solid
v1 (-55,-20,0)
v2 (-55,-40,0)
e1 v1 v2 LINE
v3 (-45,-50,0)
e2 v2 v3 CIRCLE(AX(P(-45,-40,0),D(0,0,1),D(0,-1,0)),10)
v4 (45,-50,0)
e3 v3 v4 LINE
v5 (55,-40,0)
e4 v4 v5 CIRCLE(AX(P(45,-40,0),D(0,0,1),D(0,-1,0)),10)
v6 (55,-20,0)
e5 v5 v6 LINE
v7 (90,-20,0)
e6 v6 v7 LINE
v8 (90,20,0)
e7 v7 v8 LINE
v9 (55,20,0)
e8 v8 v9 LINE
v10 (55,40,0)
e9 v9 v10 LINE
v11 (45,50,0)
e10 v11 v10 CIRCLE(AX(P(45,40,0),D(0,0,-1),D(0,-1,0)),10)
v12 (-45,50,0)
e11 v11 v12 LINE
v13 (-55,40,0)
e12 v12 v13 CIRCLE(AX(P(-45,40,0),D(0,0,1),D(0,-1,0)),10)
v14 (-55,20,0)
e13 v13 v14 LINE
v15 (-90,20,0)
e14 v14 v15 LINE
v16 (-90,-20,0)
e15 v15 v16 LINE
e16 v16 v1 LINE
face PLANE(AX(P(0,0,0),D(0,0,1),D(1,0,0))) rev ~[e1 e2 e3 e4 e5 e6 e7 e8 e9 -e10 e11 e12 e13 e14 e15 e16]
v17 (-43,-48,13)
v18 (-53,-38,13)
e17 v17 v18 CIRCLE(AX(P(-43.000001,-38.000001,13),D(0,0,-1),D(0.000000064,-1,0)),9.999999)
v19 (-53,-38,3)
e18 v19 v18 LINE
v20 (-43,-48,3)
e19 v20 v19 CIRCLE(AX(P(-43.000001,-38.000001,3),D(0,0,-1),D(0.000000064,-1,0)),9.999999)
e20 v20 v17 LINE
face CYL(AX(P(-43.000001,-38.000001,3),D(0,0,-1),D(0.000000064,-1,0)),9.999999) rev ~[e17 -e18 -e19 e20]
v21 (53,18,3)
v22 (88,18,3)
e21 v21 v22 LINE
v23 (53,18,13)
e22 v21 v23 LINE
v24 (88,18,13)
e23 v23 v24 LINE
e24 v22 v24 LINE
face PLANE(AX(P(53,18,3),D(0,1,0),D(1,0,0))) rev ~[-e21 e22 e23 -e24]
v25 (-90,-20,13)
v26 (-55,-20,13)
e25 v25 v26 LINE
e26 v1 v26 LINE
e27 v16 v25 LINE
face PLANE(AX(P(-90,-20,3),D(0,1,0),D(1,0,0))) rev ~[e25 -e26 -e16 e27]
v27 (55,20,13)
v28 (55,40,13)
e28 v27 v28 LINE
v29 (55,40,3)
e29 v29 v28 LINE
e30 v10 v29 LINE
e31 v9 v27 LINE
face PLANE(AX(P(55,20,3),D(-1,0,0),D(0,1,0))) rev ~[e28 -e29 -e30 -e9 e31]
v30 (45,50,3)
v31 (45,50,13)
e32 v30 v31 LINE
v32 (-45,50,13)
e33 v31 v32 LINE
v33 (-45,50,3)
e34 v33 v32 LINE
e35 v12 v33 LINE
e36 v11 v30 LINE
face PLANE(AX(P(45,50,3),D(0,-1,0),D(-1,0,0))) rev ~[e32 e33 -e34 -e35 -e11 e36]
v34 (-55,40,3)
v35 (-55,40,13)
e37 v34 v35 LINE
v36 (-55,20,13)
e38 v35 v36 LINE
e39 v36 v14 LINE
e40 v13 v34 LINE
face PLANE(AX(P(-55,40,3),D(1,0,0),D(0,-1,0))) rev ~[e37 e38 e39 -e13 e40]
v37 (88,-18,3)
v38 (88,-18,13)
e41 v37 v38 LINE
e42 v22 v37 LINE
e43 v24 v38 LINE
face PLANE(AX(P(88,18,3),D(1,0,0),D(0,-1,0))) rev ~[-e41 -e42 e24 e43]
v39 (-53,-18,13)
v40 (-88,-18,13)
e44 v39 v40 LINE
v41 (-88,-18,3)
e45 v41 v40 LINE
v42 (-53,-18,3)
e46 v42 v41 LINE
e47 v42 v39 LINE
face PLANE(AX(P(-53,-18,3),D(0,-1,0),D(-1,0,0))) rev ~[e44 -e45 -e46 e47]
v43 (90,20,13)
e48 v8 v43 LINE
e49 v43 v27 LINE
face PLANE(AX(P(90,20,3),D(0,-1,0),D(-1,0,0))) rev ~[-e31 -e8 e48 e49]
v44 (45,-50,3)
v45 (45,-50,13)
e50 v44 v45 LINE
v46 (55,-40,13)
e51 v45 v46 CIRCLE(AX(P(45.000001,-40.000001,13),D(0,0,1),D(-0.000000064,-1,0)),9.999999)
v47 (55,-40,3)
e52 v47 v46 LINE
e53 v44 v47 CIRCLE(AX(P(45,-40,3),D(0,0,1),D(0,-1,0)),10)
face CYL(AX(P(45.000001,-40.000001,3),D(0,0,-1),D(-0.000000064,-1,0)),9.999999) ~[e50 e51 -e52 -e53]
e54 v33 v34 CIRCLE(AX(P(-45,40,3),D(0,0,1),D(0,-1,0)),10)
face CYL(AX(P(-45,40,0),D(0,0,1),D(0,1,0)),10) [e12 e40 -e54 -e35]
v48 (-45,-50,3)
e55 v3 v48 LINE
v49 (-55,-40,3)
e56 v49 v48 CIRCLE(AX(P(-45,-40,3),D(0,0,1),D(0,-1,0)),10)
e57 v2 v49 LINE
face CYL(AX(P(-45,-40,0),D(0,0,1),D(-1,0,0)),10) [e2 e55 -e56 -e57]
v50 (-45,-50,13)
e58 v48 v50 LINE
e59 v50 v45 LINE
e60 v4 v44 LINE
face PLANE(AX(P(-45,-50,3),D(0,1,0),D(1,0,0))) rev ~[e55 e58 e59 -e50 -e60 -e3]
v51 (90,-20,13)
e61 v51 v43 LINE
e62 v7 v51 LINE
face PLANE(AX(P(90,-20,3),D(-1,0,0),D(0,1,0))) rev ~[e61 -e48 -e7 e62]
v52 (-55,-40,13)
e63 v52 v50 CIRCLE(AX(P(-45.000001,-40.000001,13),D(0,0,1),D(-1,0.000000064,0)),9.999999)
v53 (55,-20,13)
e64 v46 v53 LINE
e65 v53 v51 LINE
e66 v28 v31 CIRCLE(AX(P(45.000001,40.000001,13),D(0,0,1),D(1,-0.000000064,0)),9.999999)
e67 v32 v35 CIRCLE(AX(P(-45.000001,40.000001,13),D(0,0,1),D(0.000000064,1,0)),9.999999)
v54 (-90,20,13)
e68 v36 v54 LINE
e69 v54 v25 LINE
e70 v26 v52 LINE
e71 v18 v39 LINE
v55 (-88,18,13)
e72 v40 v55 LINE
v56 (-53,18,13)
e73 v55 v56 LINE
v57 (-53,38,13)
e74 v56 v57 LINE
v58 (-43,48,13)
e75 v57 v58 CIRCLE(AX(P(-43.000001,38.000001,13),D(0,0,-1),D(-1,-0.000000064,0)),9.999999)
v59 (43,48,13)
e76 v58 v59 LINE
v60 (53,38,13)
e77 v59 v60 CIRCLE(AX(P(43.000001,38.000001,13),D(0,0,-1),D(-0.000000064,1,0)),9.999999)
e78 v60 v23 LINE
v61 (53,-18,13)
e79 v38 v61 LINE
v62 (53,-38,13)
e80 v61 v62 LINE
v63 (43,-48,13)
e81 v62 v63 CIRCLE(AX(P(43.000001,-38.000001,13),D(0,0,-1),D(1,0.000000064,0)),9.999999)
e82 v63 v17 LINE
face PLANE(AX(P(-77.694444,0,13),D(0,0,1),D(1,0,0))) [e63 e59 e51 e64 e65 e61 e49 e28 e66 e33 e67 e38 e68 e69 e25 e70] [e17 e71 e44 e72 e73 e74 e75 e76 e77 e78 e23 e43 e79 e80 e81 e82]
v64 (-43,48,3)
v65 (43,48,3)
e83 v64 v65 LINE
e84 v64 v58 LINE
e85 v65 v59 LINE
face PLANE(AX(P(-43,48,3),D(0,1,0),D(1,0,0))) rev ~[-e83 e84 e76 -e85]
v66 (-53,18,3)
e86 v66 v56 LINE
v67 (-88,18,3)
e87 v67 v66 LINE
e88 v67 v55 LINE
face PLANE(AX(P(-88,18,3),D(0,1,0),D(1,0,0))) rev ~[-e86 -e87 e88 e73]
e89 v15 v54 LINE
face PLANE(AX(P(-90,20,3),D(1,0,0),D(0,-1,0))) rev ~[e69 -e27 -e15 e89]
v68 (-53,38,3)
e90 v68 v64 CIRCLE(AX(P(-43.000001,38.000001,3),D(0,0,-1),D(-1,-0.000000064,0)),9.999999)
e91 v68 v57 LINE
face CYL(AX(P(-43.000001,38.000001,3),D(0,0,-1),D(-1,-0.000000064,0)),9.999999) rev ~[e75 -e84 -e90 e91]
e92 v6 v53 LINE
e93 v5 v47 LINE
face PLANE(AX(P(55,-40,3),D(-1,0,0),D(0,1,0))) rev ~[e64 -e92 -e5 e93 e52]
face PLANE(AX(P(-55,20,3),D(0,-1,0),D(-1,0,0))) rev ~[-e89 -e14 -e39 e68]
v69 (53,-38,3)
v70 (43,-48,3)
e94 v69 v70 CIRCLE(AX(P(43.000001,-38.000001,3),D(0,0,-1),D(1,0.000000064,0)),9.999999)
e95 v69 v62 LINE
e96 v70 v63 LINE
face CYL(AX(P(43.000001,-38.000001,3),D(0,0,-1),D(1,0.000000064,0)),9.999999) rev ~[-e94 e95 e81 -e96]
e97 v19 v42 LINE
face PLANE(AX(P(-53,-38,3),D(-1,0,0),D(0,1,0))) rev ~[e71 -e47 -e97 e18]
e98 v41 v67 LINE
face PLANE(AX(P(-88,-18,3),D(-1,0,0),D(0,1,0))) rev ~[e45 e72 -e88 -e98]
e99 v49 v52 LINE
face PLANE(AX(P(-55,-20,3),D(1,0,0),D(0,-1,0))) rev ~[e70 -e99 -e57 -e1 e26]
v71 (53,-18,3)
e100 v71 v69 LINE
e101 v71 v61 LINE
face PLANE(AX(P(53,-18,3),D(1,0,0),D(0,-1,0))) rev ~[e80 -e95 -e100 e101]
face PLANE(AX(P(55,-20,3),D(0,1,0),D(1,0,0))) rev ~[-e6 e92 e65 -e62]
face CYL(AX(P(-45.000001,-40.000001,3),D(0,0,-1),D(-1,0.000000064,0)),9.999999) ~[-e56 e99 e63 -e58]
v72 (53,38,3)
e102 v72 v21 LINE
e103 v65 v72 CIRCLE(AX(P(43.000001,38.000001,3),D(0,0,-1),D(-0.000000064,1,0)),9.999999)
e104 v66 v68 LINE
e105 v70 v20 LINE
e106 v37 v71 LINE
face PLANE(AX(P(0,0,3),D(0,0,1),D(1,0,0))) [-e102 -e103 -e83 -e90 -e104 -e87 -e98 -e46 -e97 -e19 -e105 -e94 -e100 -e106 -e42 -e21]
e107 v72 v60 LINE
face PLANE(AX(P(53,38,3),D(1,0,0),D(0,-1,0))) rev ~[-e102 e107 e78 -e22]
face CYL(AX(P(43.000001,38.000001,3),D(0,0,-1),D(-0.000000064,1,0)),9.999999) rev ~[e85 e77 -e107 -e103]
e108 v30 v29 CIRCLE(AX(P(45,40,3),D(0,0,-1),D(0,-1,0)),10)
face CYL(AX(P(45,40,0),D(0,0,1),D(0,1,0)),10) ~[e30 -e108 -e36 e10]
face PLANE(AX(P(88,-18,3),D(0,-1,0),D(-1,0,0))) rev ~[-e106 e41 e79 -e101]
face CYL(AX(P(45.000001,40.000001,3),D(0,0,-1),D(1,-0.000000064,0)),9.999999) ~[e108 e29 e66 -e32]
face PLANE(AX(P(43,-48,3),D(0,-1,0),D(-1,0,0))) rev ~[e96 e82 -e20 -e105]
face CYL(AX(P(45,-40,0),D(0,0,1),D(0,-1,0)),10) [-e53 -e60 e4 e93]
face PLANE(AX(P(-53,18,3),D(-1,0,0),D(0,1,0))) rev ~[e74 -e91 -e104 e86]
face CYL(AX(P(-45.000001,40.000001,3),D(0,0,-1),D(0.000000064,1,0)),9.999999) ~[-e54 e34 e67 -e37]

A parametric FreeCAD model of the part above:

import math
import FreeCAD as App
import Part
import Sketcher


def edges_at(feature, points):
    """Names of the edges that pass closest to the given points."""
    edges = feature.Shape.Edges
    near = lambda p: min(range(len(edges)), key=lambda i: edges[i].distToShape(Part.Vertex(*p))[0])
    return sorted({f"Edge{near(p) + 1}" for p in points})

doc = App.newDocument("Part")
params = doc.addObject("Spreadsheet::Sheet", "Params")
for row, (alias, value) in enumerate([
    ("sketch1_width", "110 mm"),
    ("sketch1_width2", "35 mm"),
    ("sketch1_height", "30 mm"),
    ("sketch1_height2", "40 mm"),
    ("pad1_length", "3 mm"),
    ("fillet_radius", "10 mm"),
    ("sketch2_radius", "9.999999 mm"),
    ("sketch2_width", "35 mm"),
    ("sketch2_width2", "90 mm"),
    ("sketch2_width3", "86 mm"),
    ("sketch2_height", "40 mm"),
    ("pad2_length", "10 mm"),
], start=1):
    params.set(f"A{row}", alias)
    params.set(f"B{row}", "=" + value)
    params.setAlias(f"B{row}", alias)

body = doc.addObject("PartDesign::Body", "Body")

sketch1 = body.newObject("Sketcher::SketchObject", "Sketch")
sketch1.AttachmentSupport = (doc.getObject("XY_Plane"), [""])
sketch1.MapMode = "FlatFace"
sketch1.addGeometry(Part.LineSegment(App.Vector(55, 50, 0), App.Vector(-55, 50, 0)), False)
sketch1.addGeometry(Part.LineSegment(App.Vector(-55, 50, 0), App.Vector(-55, 20, 0)), False)
sketch1.addGeometry(Part.LineSegment(App.Vector(-55, 20, 0), App.Vector(-90, 20, 0)), False)
sketch1.addGeometry(Part.LineSegment(App.Vector(-90, 20, 0), App.Vector(-90, -20, 0)), False)
sketch1.addGeometry(Part.LineSegment(App.Vector(-90, -20, 0), App.Vector(-55, -20, 0)), False)
sketch1.addGeometry(Part.LineSegment(App.Vector(-55, -20, 0), App.Vector(-55, -50, 0)), False)
sketch1.addGeometry(Part.LineSegment(App.Vector(-55, -50, 0), App.Vector(55, -50, 0)), False)
sketch1.addGeometry(Part.LineSegment(App.Vector(55, -50, 0), App.Vector(55, -20, 0)), False)
sketch1.addGeometry(Part.LineSegment(App.Vector(55, -20, 0), App.Vector(90, -20, 0)), False)
sketch1.addGeometry(Part.LineSegment(App.Vector(90, -20, 0), App.Vector(90, 20, 0)), False)
sketch1.addGeometry(Part.LineSegment(App.Vector(90, 20, 0), App.Vector(55, 20, 0)), False)
sketch1.addGeometry(Part.LineSegment(App.Vector(55, 20, 0), App.Vector(55, 50, 0)), False)
sketch1.addConstraint(Sketcher.Constraint("Coincident", 0, 2, 1, 1))
sketch1.addConstraint(Sketcher.Constraint("Coincident", 1, 2, 2, 1))
sketch1.addConstraint(Sketcher.Constraint("Coincident", 2, 2, 3, 1))
sketch1.addConstraint(Sketcher.Constraint("Coincident", 3, 2, 4, 1))
sketch1.addConstraint(Sketcher.Constraint("Coincident", 4, 2, 5, 1))
sketch1.addConstraint(Sketcher.Constraint("Coincident", 5, 2, 6, 1))
sketch1.addConstraint(Sketcher.Constraint("Coincident", 6, 2, 7, 1))
sketch1.addConstraint(Sketcher.Constraint("Coincident", 7, 2, 8, 1))
sketch1.addConstraint(Sketcher.Constraint("Coincident", 8, 2, 9, 1))
sketch1.addConstraint(Sketcher.Constraint("Coincident", 9, 2, 10, 1))
sketch1.addConstraint(Sketcher.Constraint("Coincident", 10, 2, 11, 1))
sketch1.addConstraint(Sketcher.Constraint("Coincident", 11, 2, 0, 1))
sketch1.addConstraint(Sketcher.Constraint("Horizontal", 0))
sketch1.addConstraint(Sketcher.Constraint("Vertical", 1))
sketch1.addConstraint(Sketcher.Constraint("Horizontal", 2))
sketch1.addConstraint(Sketcher.Constraint("Vertical", 3))
sketch1.addConstraint(Sketcher.Constraint("Horizontal", 4))
sketch1.addConstraint(Sketcher.Constraint("Vertical", 5))
sketch1.addConstraint(Sketcher.Constraint("Horizontal", 6))
sketch1.addConstraint(Sketcher.Constraint("Vertical", 7))
sketch1.addConstraint(Sketcher.Constraint("Horizontal", 8))
sketch1.addConstraint(Sketcher.Constraint("Vertical", 9))
sketch1.addConstraint(Sketcher.Constraint("Horizontal", 10))
sketch1.addConstraint(Sketcher.Constraint("Vertical", 11))
sketch1.addConstraint(Sketcher.Constraint("Symmetric", 0, 2, 6, 2, -1, 1))
sketch1.addConstraint(Sketcher.Constraint("Symmetric", 2, 2, 8, 2, -1, 1))
sketch1.addConstraint(Sketcher.Constraint("Symmetric", 4, 2, 10, 2, -1, 1))
sketch1.addConstraint(Sketcher.Constraint("Symmetric", 4, 2, 7, 2, -2))
sketch1.addConstraint(Sketcher.Constraint("DistanceX", 0, 2, 0, 1, 110.0))
sketch1.addConstraint(Sketcher.Constraint("DistanceX", 2, 2, 2, 1, 35.0))
sketch1.addConstraint(Sketcher.Constraint("DistanceY", 1, 2, 1, 1, 30.0))
sketch1.addConstraint(Sketcher.Constraint("DistanceY", 3, 2, 3, 1, 40.0))
sketch1.setExpression("Constraints[28]", "Params.sketch1_width")
sketch1.setExpression("Constraints[29]", "Params.sketch1_width2")
sketch1.setExpression("Constraints[30]", "Params.sketch1_height")
sketch1.setExpression("Constraints[31]", "Params.sketch1_height2")
pad1 = body.newObject("PartDesign::Pad", "Pad")
pad1.Profile = sketch1
pad1.setExpression("Length", "Params.pad1_length")
doc.recompute()

fillet = body.newObject("PartDesign::Fillet", "Fillet")
fillet.Base = (pad1, edges_at(pad1, [
    (-55, 50, 1.5),
    (55, 50, 1.5),
    (55, -50, 1.5),
    (-55, -50, 1.5),
]))
fillet.setExpression("Radius", "Params.fillet_radius")

sketch2 = body.newObject("Sketcher::SketchObject", "Sketch001")
sketch2.AttachmentSupport = (doc.getObject("XY_Plane"), [""])
sketch2.MapMode = "FlatFace"
sketch2.AttachmentOffset = App.Placement(App.Vector(0, 0, 3), App.Rotation())
sketch2.addGeometry(Part.LineSegment(App.Vector(-55, 20, 0), App.Vector(-90, 20, 0)), False)
sketch2.addGeometry(Part.LineSegment(App.Vector(-90, 20, 0), App.Vector(-90, -20, 0)), False)
sketch2.addGeometry(Part.LineSegment(App.Vector(-90, -20, 0), App.Vector(-55, -20, 0)), False)
sketch2.addGeometry(Part.LineSegment(App.Vector(-55, -20, 0), App.Vector(-55, -40, 0)), False)
sketch2.addGeometry(Part.ArcOfCircle(Part.Circle(App.Vector(-45.000001, -40.000001, 0), App.Vector(0, 0, 1), 9.999999), math.radians(179.999996), math.radians(270.000004)), False)
sketch2.addGeometry(Part.LineSegment(App.Vector(-45, -50, 0), App.Vector(45, -50, 0)), False)
sketch2.addGeometry(Part.ArcOfCircle(Part.Circle(App.Vector(45.000001, -40.000001, 0), App.Vector(0, 0, 1), 9.999999), math.radians(-90.000004), math.radians(0.000004)), False)
sketch2.addGeometry(Part.LineSegment(App.Vector(55, -40, 0), App.Vector(55, -20, 0)), False)
sketch2.addGeometry(Part.LineSegment(App.Vector(55, -20, 0), App.Vector(90, -20, 0)), False)
sketch2.addGeometry(Part.LineSegment(App.Vector(90, -20, 0), App.Vector(90, 20, 0)), False)
sketch2.addGeometry(Part.LineSegment(App.Vector(90, 20, 0), App.Vector(55, 20, 0)), False)
sketch2.addGeometry(Part.LineSegment(App.Vector(55, 20, 0), App.Vector(55, 40, 0)), False)
sketch2.addGeometry(Part.ArcOfCircle(Part.Circle(App.Vector(45.000001, 40.000001, 0), App.Vector(0, 0, 1), 9.999999), math.radians(-0.000004), math.radians(90.000004)), False)
sketch2.addGeometry(Part.LineSegment(App.Vector(45, 50, 0), App.Vector(-45, 50, 0)), False)
sketch2.addGeometry(Part.ArcOfCircle(Part.Circle(App.Vector(-45.000001, 40.000001, 0), App.Vector(0, 0, 1), 9.999999), math.radians(89.999996), math.radians(180.000004)), False)
sketch2.addGeometry(Part.LineSegment(App.Vector(-55, 40, 0), App.Vector(-55, 20, 0)), False)
sketch2.addGeometry(Part.LineSegment(App.Vector(53, -18, 0), App.Vector(53, -38, 0)), False)
sketch2.addGeometry(Part.ArcOfCircle(Part.Circle(App.Vector(43.000001, -38.000001, 0), App.Vector(0, 0, 1), 9.999999), math.radians(-90.000004), math.radians(0.000004)), False)
sketch2.addGeometry(Part.LineSegment(App.Vector(43, -48, 0), App.Vector(-43, -48, 0)), False)
sketch2.addGeometry(Part.ArcOfCircle(Part.Circle(App.Vector(-43.000001, -38.000001, 0), App.Vector(0, 0, 1), 9.999999), math.radians(179.999996), math.radians(270.000004)), False)
sketch2.addGeometry(Part.LineSegment(App.Vector(-53, -38, 0), App.Vector(-53, -18, 0)), False)
sketch2.addGeometry(Part.LineSegment(App.Vector(-53, -18, 0), App.Vector(-88, -18, 0)), False)
sketch2.addGeometry(Part.LineSegment(App.Vector(-88, -18, 0), App.Vector(-88, 18, 0)), False)
sketch2.addGeometry(Part.LineSegment(App.Vector(-88, 18, 0), App.Vector(-53, 18, 0)), False)
sketch2.addGeometry(Part.LineSegment(App.Vector(-53, 18, 0), App.Vector(-53, 38, 0)), False)
sketch2.addGeometry(Part.ArcOfCircle(Part.Circle(App.Vector(-43.000001, 38.000001, 0), App.Vector(0, 0, 1), 9.999999), math.radians(89.999996), math.radians(180.000004)), False)
sketch2.addGeometry(Part.LineSegment(App.Vector(-43, 48, 0), App.Vector(43, 48, 0)), False)
sketch2.addGeometry(Part.ArcOfCircle(Part.Circle(App.Vector(43.000001, 38.000001, 0), App.Vector(0, 0, 1), 9.999999), math.radians(-0.000004), math.radians(90.000004)), False)
sketch2.addGeometry(Part.LineSegment(App.Vector(53, 38, 0), App.Vector(53, 18, 0)), False)
sketch2.addGeometry(Part.LineSegment(App.Vector(53, 18, 0), App.Vector(88, 18, 0)), False)
sketch2.addGeometry(Part.LineSegment(App.Vector(88, 18, 0), App.Vector(88, -18, 0)), False)
sketch2.addGeometry(Part.LineSegment(App.Vector(88, -18, 0), App.Vector(53, -18, 0)), False)
sketch2.addConstraint(Sketcher.Constraint("Coincident", 0, 2, 1, 1))
sketch2.addConstraint(Sketcher.Constraint("Coincident", 1, 2, 2, 1))
sketch2.addConstraint(Sketcher.Constraint("Coincident", 2, 2, 3, 1))
sketch2.addConstraint(Sketcher.Constraint("Tangent", 3, 2, 4, 1))
sketch2.addConstraint(Sketcher.Constraint("Tangent", 4, 2, 5, 1))
sketch2.addConstraint(Sketcher.Constraint("Tangent", 5, 2, 6, 1))
sketch2.addConstraint(Sketcher.Constraint("Tangent", 6, 2, 7, 1))
sketch2.addConstraint(Sketcher.Constraint("Coincident", 7, 2, 8, 1))
sketch2.addConstraint(Sketcher.Constraint("Coincident", 8, 2, 9, 1))
sketch2.addConstraint(Sketcher.Constraint("Coincident", 9, 2, 10, 1))
sketch2.addConstraint(Sketcher.Constraint("Coincident", 10, 2, 11, 1))
sketch2.addConstraint(Sketcher.Constraint("Tangent", 11, 2, 12, 1))
sketch2.addConstraint(Sketcher.Constraint("Tangent", 12, 2, 13, 1))
sketch2.addConstraint(Sketcher.Constraint("Tangent", 13, 2, 14, 1))
sketch2.addConstraint(Sketcher.Constraint("Tangent", 14, 2, 15, 1))
sketch2.addConstraint(Sketcher.Constraint("Coincident", 15, 2, 0, 1))
sketch2.addConstraint(Sketcher.Constraint("Tangent", 16, 2, 17, 2))
sketch2.addConstraint(Sketcher.Constraint("Tangent", 17, 1, 18, 1))
sketch2.addConstraint(Sketcher.Constraint("Tangent", 18, 2, 19, 2))
sketch2.addConstraint(Sketcher.Constraint("Tangent", 19, 1, 20, 1))
sketch2.addConstraint(Sketcher.Constraint("Coincident", 20, 2, 21, 1))
sketch2.addConstraint(Sketcher.Constraint("Coincident", 21, 2, 22, 1))
sketch2.addConstraint(Sketcher.Constraint("Coincident", 22, 2, 23, 1))
sketch2.addConstraint(Sketcher.Constraint("Coincident", 23, 2, 24, 1))
sketch2.addConstraint(Sketcher.Constraint("Tangent", 24, 2, 25, 2))
sketch2.addConstraint(Sketcher.Constraint("Tangent", 25, 1, 26, 1))
sketch2.addConstraint(Sketcher.Constraint("Tangent", 26, 2, 27, 2))
sketch2.addConstraint(Sketcher.Constraint("Tangent", 27, 1, 28, 1))
sketch2.addConstraint(Sketcher.Constraint("Coincident", 28, 2, 29, 1))
sketch2.addConstraint(Sketcher.Constraint("Coincident", 29, 2, 30, 1))
sketch2.addConstraint(Sketcher.Constraint("Coincident", 30, 2, 31, 1))
sketch2.addConstraint(Sketcher.Constraint("Coincident", 31, 2, 16, 1))
sketch2.addConstraint(Sketcher.Constraint("Horizontal", 0))
sketch2.addConstraint(Sketcher.Constraint("Vertical", 1))
sketch2.addConstraint(Sketcher.Constraint("Horizontal", 2))
sketch2.addConstraint(Sketcher.Constraint("Vertical", 3))
sketch2.addConstraint(Sketcher.Constraint("Horizontal", 5))
sketch2.addConstraint(Sketcher.Constraint("Vertical", 7))
sketch2.addConstraint(Sketcher.Constraint("Horizontal", 8))
sketch2.addConstraint(Sketcher.Constraint("Vertical", 9))
sketch2.addConstraint(Sketcher.Constraint("Horizontal", 10))
sketch2.addConstraint(Sketcher.Constraint("Vertical", 11))
sketch2.addConstraint(Sketcher.Constraint("Horizontal", 13))
sketch2.addConstraint(Sketcher.Constraint("Vertical", 15))
sketch2.addConstraint(Sketcher.Constraint("Vertical", 16))
sketch2.addConstraint(Sketcher.Constraint("Horizontal", 18))
sketch2.addConstraint(Sketcher.Constraint("Vertical", 20))
sketch2.addConstraint(Sketcher.Constraint("Horizontal", 21))
sketch2.addConstraint(Sketcher.Constraint("Vertical", 22))
sketch2.addConstraint(Sketcher.Constraint("Horizontal", 23))
sketch2.addConstraint(Sketcher.Constraint("Vertical", 24))
sketch2.addConstraint(Sketcher.Constraint("Horizontal", 26))
sketch2.addConstraint(Sketcher.Constraint("Vertical", 28))
sketch2.addConstraint(Sketcher.Constraint("Horizontal", 29))
sketch2.addConstraint(Sketcher.Constraint("Vertical", 30))
sketch2.addConstraint(Sketcher.Constraint("Horizontal", 31))
sketch2.addConstraint(Sketcher.Constraint("Equal", 4, 6))
sketch2.addConstraint(Sketcher.Constraint("Equal", 6, 12))
sketch2.addConstraint(Sketcher.Constraint("Equal", 12, 14))
sketch2.addConstraint(Sketcher.Constraint("Equal", 14, 17))
sketch2.addConstraint(Sketcher.Constraint("Equal", 17, 19))
sketch2.addConstraint(Sketcher.Constraint("Equal", 19, 25))
sketch2.addConstraint(Sketcher.Constraint("Equal", 25, 27))
sketch2.addConstraint(Sketcher.Constraint("Symmetric", 4, 3, 12, 3, -1, 1))
sketch2.addConstraint(Sketcher.Constraint("Symmetric", 17, 3, 25, 3, -1, 1))
sketch2.addConstraint(Sketcher.Constraint("Symmetric", 0, 2, 8, 2, -1, 1))
sketch2.addConstraint(Sketcher.Constraint("Symmetric", 20, 2, 28, 2, -1, 1))
sketch2.addConstraint(Sketcher.Constraint("Symmetric", 22, 2, 30, 2, -1, 1))
sketch2.addConstraint(Sketcher.Constraint("Symmetric", 2, 2, 7, 2, -2))
sketch2.addConstraint(Sketcher.Constraint("Symmetric", 10, 2, 15, 2, -2))
sketch2.addConstraint(Sketcher.Constraint("Symmetric", 23, 2, 28, 2, -2))
sketch2.addConstraint(Sketcher.Constraint("Equal", 10, 21))
sketch2.addConstraint(Sketcher.Constraint("Equal", 15, 16))
sketch2.addConstraint(Sketcher.Constraint("Radius", 4, 9.999999))
sketch2.addConstraint(Sketcher.Constraint("DistanceX", 0, 2, 0, 1, 35.0))
sketch2.addConstraint(Sketcher.Constraint("DistanceX", 5, 1, 5, 2, 90.0))
sketch2.addConstraint(Sketcher.Constraint("DistanceX", 18, 2, 18, 1, 86.0))
sketch2.addConstraint(Sketcher.Constraint("DistanceY", 1, 2, 1, 1, 40.0))
sketch2.addConstraint(Sketcher.Constraint("DistanceY", 3, 2, 3, 1, 20.0))
sketch2.addConstraint(Sketcher.Constraint("DistanceY", 22, 1, 22, 2, 36.0))
sketch2.setExpression("Constraints[73]", "Params.sketch2_radius")
sketch2.setExpression("Constraints[74]", "Params.sketch2_width")
sketch2.setExpression("Constraints[75]", "Params.sketch2_width2")
sketch2.setExpression("Constraints[76]", "Params.sketch2_width3")
sketch2.setExpression("Constraints[77]", "Params.sketch2_height")
pad2 = body.newObject("PartDesign::Pad", "Pad001")
pad2.Profile = sketch2
pad2.setExpression("Length", "Params.pad2_length")

doc.recompute()
